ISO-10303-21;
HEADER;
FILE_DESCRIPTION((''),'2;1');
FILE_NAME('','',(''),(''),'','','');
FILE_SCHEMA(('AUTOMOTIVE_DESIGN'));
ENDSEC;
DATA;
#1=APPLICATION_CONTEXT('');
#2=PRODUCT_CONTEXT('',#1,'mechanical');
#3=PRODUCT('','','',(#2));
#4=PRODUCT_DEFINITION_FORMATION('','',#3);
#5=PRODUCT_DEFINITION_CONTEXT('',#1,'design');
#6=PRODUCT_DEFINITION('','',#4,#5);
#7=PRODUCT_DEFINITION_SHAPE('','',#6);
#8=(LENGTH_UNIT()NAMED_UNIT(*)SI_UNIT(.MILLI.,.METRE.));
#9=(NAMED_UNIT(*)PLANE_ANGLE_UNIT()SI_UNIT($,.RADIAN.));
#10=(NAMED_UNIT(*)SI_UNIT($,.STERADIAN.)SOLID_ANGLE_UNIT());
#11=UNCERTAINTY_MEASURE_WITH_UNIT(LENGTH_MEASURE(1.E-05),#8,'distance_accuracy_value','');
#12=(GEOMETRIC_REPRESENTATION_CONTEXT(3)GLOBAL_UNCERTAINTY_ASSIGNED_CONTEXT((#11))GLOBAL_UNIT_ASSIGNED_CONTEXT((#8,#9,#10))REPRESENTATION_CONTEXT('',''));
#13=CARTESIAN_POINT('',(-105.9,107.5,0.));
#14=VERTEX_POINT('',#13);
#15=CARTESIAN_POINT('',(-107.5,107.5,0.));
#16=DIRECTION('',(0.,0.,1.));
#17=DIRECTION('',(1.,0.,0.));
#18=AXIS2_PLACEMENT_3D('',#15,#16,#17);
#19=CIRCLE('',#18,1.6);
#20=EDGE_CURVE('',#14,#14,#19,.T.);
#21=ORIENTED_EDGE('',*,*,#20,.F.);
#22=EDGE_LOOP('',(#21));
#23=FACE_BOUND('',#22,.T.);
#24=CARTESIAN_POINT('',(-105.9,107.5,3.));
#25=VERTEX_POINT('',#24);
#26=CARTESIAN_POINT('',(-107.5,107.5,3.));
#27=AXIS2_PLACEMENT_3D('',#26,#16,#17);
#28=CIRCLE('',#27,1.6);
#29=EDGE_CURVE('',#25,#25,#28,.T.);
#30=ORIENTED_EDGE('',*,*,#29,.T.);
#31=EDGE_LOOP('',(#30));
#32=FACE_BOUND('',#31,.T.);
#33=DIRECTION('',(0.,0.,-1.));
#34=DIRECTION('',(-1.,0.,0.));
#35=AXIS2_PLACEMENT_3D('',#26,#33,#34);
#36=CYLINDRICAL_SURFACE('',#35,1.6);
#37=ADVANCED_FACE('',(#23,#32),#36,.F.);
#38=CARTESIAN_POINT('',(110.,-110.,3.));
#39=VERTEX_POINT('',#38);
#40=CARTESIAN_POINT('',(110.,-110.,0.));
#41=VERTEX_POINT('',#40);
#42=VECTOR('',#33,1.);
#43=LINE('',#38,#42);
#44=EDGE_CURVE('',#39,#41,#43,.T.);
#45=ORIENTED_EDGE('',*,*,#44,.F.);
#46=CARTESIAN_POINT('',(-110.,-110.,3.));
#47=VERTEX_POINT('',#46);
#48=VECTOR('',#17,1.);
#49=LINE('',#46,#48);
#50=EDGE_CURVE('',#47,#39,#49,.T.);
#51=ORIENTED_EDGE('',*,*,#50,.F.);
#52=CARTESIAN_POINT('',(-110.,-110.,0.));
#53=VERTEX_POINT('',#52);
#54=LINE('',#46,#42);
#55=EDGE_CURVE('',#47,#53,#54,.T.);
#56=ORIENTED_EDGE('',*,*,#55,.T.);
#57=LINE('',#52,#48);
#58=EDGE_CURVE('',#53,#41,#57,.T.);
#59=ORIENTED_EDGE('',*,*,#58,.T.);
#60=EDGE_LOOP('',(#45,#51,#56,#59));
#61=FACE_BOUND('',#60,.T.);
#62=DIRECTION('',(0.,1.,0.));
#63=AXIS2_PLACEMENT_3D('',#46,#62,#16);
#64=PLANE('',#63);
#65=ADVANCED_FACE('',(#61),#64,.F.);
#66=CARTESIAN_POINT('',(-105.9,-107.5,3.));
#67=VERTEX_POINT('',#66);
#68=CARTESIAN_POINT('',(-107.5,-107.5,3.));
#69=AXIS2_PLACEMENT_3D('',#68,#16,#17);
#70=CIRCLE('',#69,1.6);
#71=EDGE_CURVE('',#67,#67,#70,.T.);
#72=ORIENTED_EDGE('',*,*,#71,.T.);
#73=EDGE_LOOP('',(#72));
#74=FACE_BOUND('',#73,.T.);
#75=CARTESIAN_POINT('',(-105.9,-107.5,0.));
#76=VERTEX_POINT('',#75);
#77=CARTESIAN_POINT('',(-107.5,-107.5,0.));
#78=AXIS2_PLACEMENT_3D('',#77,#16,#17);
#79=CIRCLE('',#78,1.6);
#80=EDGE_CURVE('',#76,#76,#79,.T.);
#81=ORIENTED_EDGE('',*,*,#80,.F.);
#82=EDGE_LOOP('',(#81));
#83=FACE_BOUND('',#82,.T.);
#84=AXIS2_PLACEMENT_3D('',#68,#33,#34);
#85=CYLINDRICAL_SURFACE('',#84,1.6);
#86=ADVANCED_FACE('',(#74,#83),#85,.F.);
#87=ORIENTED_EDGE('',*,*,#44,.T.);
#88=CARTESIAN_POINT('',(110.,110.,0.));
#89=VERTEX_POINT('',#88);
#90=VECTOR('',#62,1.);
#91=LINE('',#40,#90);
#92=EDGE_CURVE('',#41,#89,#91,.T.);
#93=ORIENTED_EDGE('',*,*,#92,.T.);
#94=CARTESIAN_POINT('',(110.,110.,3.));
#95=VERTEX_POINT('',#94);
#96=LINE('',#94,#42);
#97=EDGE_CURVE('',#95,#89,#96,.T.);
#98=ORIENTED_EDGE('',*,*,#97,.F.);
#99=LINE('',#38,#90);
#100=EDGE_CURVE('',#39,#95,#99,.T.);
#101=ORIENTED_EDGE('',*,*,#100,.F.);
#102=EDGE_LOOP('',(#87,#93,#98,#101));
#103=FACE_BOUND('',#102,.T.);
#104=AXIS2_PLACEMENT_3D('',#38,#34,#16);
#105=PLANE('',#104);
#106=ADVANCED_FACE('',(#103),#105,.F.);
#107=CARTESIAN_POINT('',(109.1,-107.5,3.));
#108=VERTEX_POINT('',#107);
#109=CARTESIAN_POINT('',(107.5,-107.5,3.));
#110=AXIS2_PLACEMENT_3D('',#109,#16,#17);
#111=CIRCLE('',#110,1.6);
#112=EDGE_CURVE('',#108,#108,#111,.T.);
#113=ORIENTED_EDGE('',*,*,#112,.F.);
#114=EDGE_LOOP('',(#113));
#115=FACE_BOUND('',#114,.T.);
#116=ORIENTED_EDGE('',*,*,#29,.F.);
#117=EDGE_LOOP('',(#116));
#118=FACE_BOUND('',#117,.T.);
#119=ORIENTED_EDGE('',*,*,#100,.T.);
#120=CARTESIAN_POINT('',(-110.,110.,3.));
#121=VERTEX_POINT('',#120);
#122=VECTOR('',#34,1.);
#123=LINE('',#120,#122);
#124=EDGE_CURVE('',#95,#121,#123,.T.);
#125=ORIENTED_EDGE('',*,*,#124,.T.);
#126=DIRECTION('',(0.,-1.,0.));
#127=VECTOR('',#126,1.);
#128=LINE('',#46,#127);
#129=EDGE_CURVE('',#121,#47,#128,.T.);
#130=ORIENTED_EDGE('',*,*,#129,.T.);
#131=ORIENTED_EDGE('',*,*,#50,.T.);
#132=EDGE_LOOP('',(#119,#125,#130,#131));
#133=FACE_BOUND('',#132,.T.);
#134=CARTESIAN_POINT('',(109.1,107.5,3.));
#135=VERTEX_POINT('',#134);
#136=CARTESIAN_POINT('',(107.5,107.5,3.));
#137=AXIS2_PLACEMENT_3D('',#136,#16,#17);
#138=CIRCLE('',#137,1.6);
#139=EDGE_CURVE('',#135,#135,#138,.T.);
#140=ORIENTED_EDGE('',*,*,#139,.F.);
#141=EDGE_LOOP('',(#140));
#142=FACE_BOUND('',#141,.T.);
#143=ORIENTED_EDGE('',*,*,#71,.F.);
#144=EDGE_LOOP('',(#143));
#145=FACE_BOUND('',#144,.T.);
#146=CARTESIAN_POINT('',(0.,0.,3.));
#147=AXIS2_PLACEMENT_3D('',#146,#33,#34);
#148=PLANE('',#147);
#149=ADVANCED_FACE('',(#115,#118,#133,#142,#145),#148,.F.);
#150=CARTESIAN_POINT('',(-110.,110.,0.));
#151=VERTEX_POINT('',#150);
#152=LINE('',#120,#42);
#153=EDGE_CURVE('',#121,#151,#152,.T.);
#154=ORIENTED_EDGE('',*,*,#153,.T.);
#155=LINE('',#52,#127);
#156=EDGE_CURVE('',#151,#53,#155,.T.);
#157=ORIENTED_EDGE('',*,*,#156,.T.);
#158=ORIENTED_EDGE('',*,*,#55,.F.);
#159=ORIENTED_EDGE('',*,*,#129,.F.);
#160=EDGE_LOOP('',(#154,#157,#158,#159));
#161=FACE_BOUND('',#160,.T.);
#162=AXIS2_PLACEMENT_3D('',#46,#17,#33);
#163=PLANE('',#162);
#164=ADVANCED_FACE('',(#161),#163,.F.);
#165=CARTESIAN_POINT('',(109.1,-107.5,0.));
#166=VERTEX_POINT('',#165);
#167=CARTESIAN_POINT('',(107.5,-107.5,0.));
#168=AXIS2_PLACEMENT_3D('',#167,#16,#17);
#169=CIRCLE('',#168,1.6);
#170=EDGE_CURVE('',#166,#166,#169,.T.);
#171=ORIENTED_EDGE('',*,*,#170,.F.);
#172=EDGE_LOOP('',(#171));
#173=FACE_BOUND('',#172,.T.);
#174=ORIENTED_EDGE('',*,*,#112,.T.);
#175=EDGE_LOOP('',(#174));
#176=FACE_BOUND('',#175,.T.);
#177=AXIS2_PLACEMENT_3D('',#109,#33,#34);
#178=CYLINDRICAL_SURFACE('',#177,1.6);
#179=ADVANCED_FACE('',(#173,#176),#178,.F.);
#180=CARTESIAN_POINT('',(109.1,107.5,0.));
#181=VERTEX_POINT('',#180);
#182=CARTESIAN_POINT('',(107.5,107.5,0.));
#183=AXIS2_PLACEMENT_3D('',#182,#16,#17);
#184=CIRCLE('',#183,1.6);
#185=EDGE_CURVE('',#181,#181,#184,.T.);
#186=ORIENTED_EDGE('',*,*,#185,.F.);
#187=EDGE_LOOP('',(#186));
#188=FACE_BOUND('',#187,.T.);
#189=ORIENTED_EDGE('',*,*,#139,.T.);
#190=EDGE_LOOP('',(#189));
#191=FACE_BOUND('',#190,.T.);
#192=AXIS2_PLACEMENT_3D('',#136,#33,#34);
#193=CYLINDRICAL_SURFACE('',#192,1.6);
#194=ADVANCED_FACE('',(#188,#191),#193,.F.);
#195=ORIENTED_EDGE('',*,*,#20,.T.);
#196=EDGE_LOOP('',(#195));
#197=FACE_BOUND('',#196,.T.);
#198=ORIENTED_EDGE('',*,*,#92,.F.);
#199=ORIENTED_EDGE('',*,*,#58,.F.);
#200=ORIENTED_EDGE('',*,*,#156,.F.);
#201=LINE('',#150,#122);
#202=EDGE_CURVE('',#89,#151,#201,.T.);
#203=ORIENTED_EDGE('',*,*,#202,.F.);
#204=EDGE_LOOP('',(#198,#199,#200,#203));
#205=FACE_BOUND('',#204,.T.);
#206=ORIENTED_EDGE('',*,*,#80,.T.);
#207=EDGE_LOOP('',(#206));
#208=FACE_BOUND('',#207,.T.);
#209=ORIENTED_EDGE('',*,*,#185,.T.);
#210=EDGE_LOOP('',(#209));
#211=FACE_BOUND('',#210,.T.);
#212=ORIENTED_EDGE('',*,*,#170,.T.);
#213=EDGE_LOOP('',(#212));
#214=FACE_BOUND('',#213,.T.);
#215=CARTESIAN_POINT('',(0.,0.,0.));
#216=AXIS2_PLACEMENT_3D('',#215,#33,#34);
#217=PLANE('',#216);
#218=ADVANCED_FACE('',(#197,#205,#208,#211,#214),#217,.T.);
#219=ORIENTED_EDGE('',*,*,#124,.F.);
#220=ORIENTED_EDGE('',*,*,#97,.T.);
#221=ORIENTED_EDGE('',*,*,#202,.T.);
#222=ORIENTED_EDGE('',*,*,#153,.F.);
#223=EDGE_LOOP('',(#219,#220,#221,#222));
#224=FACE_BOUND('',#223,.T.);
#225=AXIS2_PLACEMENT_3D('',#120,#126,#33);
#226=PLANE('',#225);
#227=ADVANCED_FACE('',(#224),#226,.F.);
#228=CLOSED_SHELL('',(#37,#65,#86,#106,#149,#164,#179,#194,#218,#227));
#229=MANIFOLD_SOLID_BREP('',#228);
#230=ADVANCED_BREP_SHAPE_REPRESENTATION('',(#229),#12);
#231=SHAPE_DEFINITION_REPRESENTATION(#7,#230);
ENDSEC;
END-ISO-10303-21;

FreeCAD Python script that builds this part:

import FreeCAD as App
import Part
import Sketcher

V = App.Vector
Q = App.Units.Quantity

doc = App.newDocument("Part")
body = doc.addObject("PartDesign::Body", "Body")

# Sketch on XY plane
sketch1 = body.newObject("Sketcher::SketchObject", "Sketch")
sketch1.AttachmentSupport = (doc.getObject("XY_Plane"), [""])
sketch1.MapMode = "FlatFace"
sketch1.addGeometry([
    Part.LineSegment(V(-110, 110, 0), V(-110, -110, 0)),  # 0
    Part.LineSegment(V(-110, -110, 0), V(110, -110, 0)),  # 1
    Part.LineSegment(V(110, -110, 0), V(110, 110, 0)),  # 2
    Part.LineSegment(V(110, 110, 0), V(-110, 110, 0)),  # 3
    Part.Circle(V(-107.5, -107.5, 0), V(0, 0, 1), 1.6),  # 4
    Part.Circle(V(107.5, -107.5, 0), V(0, 0, 1), 1.6),  # 5
    Part.Circle(V(-107.5, 107.5, 0), V(0, 0, 1), 1.6),  # 6
    Part.Circle(V(107.5, 107.5, 0), V(0, 0, 1), 1.6),  # 7
], False)
sketch1.addConstraint([
    Sketcher.Constraint("Coincident", 0, 2, 1, 1),
    Sketcher.Constraint("Coincident", 1, 2, 2, 1),
    Sketcher.Constraint("Coincident", 2, 2, 3, 1),
    Sketcher.Constraint("Coincident", 3, 2, 0, 1),
    Sketcher.Constraint("Vertical", 0),
    Sketcher.Constraint("Horizontal", 1),
    Sketcher.Constraint("Vertical", 2),
    Sketcher.Constraint("Horizontal", 3),
    Sketcher.Constraint("Equal", 4, 5),
    Sketcher.Constraint("Equal", 5, 6),
    Sketcher.Constraint("Equal", 6, 7),
    Sketcher.Constraint("Symmetric", 5, 3, 6, 3, -1, 1),
    Sketcher.Constraint("Symmetric", 4, 3, 7, 3, -1, 1),
    Sketcher.Constraint("Symmetric", 0, 2, 2, 2, -1, 1),
    Sketcher.Constraint("Symmetric", 4, 3, 5, 3, -2),
    Sketcher.Constraint("Equal", 3, 0),
    Sketcher.Constraint("Diameter", 4, Q("3.2 mm")),
    Sketcher.Constraint("DistanceX", 1, 1, 1, 2, Q("220 mm")),
    Sketcher.Constraint("DistanceX", 4, 3, 5, 3, Q("215 mm")),
    Sketcher.Constraint("DistanceY", 4, 3, 6, 3, Q("215 mm")),
])
pad1 = body.newObject("PartDesign::Pad", "Pad")
pad1.Profile = sketch1
pad1.Length = 3

doc.recompute()
